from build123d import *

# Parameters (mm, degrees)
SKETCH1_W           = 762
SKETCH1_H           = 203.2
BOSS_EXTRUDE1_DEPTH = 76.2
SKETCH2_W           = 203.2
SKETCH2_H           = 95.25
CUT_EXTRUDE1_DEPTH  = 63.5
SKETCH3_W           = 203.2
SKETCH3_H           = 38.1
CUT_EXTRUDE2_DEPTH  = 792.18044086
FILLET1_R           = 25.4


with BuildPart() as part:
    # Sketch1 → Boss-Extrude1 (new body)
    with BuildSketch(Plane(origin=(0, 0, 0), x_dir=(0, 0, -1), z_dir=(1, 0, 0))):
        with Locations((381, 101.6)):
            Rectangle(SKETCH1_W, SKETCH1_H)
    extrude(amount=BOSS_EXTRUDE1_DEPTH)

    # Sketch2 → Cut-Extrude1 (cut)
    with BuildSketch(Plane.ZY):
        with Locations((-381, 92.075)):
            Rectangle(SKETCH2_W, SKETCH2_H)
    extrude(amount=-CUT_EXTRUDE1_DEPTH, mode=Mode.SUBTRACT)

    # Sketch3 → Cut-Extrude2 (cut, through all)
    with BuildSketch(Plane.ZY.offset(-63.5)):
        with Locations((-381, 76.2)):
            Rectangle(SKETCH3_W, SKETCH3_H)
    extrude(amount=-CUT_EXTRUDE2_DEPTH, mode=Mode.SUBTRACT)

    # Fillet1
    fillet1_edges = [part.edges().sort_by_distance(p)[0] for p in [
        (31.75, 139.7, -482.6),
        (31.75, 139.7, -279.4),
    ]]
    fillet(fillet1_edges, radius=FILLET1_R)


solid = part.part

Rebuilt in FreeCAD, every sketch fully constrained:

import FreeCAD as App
import Part
import Sketcher
Q = App.Units.Quantity


def edges_at(feature, points):
    """Names of the edges that pass closest to the given points."""
    edges = feature.Shape.Edges
    near = lambda p: min(range(len(edges)), key=lambda i: edges[i].distToShape(Part.Vertex(*p))[0])
    return sorted({f"Edge{near(p) + 1}" for p in points})


def add_polygon(sketch, points):
    """Adds a closed chain of lines whose ends are joined by coincident constraints."""
    first, n = sketch.GeometryCount, len(points)
    for a, b in zip(points, points[1:] + points[:1]):
        sketch.addGeometry(Part.LineSegment(App.Vector(*a, 0), App.Vector(*b, 0)), False)
    for i in range(n):
        sketch.addConstraint(Sketcher.Constraint("Coincident", first + i, 2, first + (i + 1) % n, 1))

doc = App.newDocument("Part")
params = doc.addObject("Spreadsheet::Sheet", "Params")
for row, (alias, value) in enumerate([
    ("sketch1_width", "8 in"),
    ("sketch1_height", "30 in"),
    ("pad1_length", "3 in"),
    ("sketch2_height", "8 in"),
    ("sketch2_width", "3.75 in"),
    ("pocket1_length", "2.5 in"),
    ("sketch3_height", "8 in"),
    ("sketch3_width", "1.5 in"),
    ("fillet_radius", "1 in"),
], start=1):
    params.set(f"A{row}", alias)
    params.set(f"B{row}", "=" + value)
    params.setAlias(f"B{row}", alias)

body = doc.addObject("PartDesign::Body", "Body")

# Sketch on YZ plane
sketch1 = body.newObject("Sketcher::SketchObject", "Sketch")
sketch1.AttachmentSupport = (doc.getObject("YZ_Plane"), [""])
sketch1.MapMode = "FlatFace"
add_polygon(sketch1, [(203, 0), (0, 0), (0, -762), (203, -762)])  # lines 0-3
sketch1.addConstraint([
    Sketcher.Constraint("Horizontal", 0),
    Sketcher.Constraint("Vertical", 1),
    Sketcher.Constraint("Horizontal", 2),
    Sketcher.Constraint("Vertical", 3),
    Sketcher.Constraint("Coincident", 0, 2, -1, 1),
    Sketcher.Constraint("DistanceX", 0, 2, 0, 1, Q("8 in")),
    Sketcher.Constraint("DistanceY", 1, 2, 1, 1, Q("30 in")),
])
sketch1.setExpression("Constraints[9]", "Params.sketch1_width")
sketch1.setExpression("Constraints[10]", "Params.sketch1_height")
pad1 = body.newObject("PartDesign::Pad", "Pad")
pad1.Profile = sketch1
pad1.setExpression("Length", "Params.pad1_length")

# Sketch on YZ plane
sketch2 = body.newObject("Sketcher::SketchObject", "Sketch001")
sketch2.AttachmentSupport = (doc.getObject("YZ_Plane"), [""])
sketch2.MapMode = "FlatFace"
add_polygon(sketch2, [(140, -483), (44, -483), (44, -279), (140, -279)])  # lines 0-3
sketch2.addConstraint([
    Sketcher.Constraint("Horizontal", 0),
    Sketcher.Constraint("Vertical", 1),
    Sketcher.Constraint("Horizontal", 2),
    Sketcher.Constraint("Vertical", 3),
    Sketcher.Constraint("DistanceY", 1, 1, 1, 2, Q("8 in")),
    Sketcher.Constraint("DistanceY", 0, 2, -1, 1, Q("19 in")),
    Sketcher.Constraint("DistanceX", 0, 2, 0, 1, Q("3.75 in")),
    Sketcher.Constraint("DistanceX", -1, 1, 2, 2, Q("5.5 in")),
])
sketch2.setExpression("Constraints[8]", "Params.sketch2_height")
sketch2.setExpression("Constraints[10]", "Params.sketch2_width")
pocket1 = body.newObject("PartDesign::Pocket", "Pocket")
pocket1.Profile = sketch2
pocket1.setExpression("Length", "Params.pocket1_length")
pocket1.Reversed = True

# Sketch on YZ plane
sketch3 = body.newObject("Sketcher::SketchObject", "Sketch002")
sketch3.AttachmentSupport = (doc.getObject("YZ_Plane"), [""])
sketch3.MapMode = "FlatFace"
sketch3.AttachmentOffset = App.Placement(App.Vector(0, 0, 2.5 * 25.4), App.Rotation())
add_polygon(sketch3, [(95, -483), (57, -483), (57, -279), (95, -279)])  # lines 0-3
sketch3.addConstraint([
    Sketcher.Constraint("Horizontal", 0),
    Sketcher.Constraint("Vertical", 1),
    Sketcher.Constraint("Horizontal", 2),
    Sketcher.Constraint("Vertical", 3),
    Sketcher.Constraint("DistanceY", 1, 1, 1, 2, Q("8 in")),
    Sketcher.Constraint("DistanceX", 0, 2, 0, 1, Q("1.5 in")),
    Sketcher.Constraint("DistanceY", 0, 2, -1, 1, Q("19 in")),
    Sketcher.Constraint("DistanceX", -1, 1, 0, 2, Q("2.25 in")),
])
sketch3.setExpression("Constraints[8]", "Params.sketch3_height")
sketch3.setExpression("Constraints[9]", "Params.sketch3_width")
pocket2 = body.newObject("PartDesign::Pocket", "Pocket001")
pocket2.Profile = sketch3
pocket2.Type = "ThroughAll"
pocket2.Reversed = True
doc.recompute()

fillet = body.newObject("PartDesign::Fillet", "Fillet")
fillet.Base = (pocket2, edges_at(pocket2, [(31.75, 139.7, -482.6), (31.75, 139.7, -279.4)]))
fillet.setExpression("Radius", "Params.fillet_radius")

doc.recompute()
